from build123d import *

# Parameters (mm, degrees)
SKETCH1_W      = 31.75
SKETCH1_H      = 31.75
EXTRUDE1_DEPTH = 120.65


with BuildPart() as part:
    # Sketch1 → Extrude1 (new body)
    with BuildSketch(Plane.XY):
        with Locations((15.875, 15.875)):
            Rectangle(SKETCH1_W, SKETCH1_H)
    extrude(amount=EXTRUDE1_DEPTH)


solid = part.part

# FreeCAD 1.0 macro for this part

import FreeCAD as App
import Part
import Sketcher

V = App.Vector
Q = App.Units.Quantity


def add_polygon(sketch, points):
    """Adds a closed chain of lines whose ends are joined by coincident constraints."""
    first, n = sketch.GeometryCount, len(points)
    for a, b in zip(points, points[1:] + points[:1]):
        sketch.addGeometry(Part.LineSegment(App.Vector(*a, 0), App.Vector(*b, 0)), False)
    for i in range(n):
        sketch.addConstraint(Sketcher.Constraint("Coincident", first + i, 2, first + (i + 1) % n, 1))

doc = App.newDocument("Part")
body = doc.addObject("PartDesign::Body", "Body")

# Sketch on XY plane
sketch1 = body.newObject("Sketcher::SketchObject", "Sketch")
sketch1.AttachmentSupport = (doc.getObject("XY_Plane"), [""])
sketch1.MapMode = "FlatFace"
add_polygon(sketch1, [(0, 32), (0, 0), (32, 0), (32, 32)])  # lines 0-3
sketch1.addConstraint([
    Sketcher.Constraint("Vertical", 0),
    Sketcher.Constraint("Horizontal", 1),
    Sketcher.Constraint("Vertical", 2),
    Sketcher.Constraint("Horizontal", 3),
    Sketcher.Constraint("Coincident", 0, 2, -1, 1),
    Sketcher.Constraint("Equal", 3, 0),
    Sketcher.Constraint("DistanceX", 1, 1, 1, 2, Q("1.25 in")),
])
pad1 = body.newObject("PartDesign::Pad", "Pad")
pad1.Profile = sketch1
pad1.Length = Q("4.75 in")

doc.recompute()
